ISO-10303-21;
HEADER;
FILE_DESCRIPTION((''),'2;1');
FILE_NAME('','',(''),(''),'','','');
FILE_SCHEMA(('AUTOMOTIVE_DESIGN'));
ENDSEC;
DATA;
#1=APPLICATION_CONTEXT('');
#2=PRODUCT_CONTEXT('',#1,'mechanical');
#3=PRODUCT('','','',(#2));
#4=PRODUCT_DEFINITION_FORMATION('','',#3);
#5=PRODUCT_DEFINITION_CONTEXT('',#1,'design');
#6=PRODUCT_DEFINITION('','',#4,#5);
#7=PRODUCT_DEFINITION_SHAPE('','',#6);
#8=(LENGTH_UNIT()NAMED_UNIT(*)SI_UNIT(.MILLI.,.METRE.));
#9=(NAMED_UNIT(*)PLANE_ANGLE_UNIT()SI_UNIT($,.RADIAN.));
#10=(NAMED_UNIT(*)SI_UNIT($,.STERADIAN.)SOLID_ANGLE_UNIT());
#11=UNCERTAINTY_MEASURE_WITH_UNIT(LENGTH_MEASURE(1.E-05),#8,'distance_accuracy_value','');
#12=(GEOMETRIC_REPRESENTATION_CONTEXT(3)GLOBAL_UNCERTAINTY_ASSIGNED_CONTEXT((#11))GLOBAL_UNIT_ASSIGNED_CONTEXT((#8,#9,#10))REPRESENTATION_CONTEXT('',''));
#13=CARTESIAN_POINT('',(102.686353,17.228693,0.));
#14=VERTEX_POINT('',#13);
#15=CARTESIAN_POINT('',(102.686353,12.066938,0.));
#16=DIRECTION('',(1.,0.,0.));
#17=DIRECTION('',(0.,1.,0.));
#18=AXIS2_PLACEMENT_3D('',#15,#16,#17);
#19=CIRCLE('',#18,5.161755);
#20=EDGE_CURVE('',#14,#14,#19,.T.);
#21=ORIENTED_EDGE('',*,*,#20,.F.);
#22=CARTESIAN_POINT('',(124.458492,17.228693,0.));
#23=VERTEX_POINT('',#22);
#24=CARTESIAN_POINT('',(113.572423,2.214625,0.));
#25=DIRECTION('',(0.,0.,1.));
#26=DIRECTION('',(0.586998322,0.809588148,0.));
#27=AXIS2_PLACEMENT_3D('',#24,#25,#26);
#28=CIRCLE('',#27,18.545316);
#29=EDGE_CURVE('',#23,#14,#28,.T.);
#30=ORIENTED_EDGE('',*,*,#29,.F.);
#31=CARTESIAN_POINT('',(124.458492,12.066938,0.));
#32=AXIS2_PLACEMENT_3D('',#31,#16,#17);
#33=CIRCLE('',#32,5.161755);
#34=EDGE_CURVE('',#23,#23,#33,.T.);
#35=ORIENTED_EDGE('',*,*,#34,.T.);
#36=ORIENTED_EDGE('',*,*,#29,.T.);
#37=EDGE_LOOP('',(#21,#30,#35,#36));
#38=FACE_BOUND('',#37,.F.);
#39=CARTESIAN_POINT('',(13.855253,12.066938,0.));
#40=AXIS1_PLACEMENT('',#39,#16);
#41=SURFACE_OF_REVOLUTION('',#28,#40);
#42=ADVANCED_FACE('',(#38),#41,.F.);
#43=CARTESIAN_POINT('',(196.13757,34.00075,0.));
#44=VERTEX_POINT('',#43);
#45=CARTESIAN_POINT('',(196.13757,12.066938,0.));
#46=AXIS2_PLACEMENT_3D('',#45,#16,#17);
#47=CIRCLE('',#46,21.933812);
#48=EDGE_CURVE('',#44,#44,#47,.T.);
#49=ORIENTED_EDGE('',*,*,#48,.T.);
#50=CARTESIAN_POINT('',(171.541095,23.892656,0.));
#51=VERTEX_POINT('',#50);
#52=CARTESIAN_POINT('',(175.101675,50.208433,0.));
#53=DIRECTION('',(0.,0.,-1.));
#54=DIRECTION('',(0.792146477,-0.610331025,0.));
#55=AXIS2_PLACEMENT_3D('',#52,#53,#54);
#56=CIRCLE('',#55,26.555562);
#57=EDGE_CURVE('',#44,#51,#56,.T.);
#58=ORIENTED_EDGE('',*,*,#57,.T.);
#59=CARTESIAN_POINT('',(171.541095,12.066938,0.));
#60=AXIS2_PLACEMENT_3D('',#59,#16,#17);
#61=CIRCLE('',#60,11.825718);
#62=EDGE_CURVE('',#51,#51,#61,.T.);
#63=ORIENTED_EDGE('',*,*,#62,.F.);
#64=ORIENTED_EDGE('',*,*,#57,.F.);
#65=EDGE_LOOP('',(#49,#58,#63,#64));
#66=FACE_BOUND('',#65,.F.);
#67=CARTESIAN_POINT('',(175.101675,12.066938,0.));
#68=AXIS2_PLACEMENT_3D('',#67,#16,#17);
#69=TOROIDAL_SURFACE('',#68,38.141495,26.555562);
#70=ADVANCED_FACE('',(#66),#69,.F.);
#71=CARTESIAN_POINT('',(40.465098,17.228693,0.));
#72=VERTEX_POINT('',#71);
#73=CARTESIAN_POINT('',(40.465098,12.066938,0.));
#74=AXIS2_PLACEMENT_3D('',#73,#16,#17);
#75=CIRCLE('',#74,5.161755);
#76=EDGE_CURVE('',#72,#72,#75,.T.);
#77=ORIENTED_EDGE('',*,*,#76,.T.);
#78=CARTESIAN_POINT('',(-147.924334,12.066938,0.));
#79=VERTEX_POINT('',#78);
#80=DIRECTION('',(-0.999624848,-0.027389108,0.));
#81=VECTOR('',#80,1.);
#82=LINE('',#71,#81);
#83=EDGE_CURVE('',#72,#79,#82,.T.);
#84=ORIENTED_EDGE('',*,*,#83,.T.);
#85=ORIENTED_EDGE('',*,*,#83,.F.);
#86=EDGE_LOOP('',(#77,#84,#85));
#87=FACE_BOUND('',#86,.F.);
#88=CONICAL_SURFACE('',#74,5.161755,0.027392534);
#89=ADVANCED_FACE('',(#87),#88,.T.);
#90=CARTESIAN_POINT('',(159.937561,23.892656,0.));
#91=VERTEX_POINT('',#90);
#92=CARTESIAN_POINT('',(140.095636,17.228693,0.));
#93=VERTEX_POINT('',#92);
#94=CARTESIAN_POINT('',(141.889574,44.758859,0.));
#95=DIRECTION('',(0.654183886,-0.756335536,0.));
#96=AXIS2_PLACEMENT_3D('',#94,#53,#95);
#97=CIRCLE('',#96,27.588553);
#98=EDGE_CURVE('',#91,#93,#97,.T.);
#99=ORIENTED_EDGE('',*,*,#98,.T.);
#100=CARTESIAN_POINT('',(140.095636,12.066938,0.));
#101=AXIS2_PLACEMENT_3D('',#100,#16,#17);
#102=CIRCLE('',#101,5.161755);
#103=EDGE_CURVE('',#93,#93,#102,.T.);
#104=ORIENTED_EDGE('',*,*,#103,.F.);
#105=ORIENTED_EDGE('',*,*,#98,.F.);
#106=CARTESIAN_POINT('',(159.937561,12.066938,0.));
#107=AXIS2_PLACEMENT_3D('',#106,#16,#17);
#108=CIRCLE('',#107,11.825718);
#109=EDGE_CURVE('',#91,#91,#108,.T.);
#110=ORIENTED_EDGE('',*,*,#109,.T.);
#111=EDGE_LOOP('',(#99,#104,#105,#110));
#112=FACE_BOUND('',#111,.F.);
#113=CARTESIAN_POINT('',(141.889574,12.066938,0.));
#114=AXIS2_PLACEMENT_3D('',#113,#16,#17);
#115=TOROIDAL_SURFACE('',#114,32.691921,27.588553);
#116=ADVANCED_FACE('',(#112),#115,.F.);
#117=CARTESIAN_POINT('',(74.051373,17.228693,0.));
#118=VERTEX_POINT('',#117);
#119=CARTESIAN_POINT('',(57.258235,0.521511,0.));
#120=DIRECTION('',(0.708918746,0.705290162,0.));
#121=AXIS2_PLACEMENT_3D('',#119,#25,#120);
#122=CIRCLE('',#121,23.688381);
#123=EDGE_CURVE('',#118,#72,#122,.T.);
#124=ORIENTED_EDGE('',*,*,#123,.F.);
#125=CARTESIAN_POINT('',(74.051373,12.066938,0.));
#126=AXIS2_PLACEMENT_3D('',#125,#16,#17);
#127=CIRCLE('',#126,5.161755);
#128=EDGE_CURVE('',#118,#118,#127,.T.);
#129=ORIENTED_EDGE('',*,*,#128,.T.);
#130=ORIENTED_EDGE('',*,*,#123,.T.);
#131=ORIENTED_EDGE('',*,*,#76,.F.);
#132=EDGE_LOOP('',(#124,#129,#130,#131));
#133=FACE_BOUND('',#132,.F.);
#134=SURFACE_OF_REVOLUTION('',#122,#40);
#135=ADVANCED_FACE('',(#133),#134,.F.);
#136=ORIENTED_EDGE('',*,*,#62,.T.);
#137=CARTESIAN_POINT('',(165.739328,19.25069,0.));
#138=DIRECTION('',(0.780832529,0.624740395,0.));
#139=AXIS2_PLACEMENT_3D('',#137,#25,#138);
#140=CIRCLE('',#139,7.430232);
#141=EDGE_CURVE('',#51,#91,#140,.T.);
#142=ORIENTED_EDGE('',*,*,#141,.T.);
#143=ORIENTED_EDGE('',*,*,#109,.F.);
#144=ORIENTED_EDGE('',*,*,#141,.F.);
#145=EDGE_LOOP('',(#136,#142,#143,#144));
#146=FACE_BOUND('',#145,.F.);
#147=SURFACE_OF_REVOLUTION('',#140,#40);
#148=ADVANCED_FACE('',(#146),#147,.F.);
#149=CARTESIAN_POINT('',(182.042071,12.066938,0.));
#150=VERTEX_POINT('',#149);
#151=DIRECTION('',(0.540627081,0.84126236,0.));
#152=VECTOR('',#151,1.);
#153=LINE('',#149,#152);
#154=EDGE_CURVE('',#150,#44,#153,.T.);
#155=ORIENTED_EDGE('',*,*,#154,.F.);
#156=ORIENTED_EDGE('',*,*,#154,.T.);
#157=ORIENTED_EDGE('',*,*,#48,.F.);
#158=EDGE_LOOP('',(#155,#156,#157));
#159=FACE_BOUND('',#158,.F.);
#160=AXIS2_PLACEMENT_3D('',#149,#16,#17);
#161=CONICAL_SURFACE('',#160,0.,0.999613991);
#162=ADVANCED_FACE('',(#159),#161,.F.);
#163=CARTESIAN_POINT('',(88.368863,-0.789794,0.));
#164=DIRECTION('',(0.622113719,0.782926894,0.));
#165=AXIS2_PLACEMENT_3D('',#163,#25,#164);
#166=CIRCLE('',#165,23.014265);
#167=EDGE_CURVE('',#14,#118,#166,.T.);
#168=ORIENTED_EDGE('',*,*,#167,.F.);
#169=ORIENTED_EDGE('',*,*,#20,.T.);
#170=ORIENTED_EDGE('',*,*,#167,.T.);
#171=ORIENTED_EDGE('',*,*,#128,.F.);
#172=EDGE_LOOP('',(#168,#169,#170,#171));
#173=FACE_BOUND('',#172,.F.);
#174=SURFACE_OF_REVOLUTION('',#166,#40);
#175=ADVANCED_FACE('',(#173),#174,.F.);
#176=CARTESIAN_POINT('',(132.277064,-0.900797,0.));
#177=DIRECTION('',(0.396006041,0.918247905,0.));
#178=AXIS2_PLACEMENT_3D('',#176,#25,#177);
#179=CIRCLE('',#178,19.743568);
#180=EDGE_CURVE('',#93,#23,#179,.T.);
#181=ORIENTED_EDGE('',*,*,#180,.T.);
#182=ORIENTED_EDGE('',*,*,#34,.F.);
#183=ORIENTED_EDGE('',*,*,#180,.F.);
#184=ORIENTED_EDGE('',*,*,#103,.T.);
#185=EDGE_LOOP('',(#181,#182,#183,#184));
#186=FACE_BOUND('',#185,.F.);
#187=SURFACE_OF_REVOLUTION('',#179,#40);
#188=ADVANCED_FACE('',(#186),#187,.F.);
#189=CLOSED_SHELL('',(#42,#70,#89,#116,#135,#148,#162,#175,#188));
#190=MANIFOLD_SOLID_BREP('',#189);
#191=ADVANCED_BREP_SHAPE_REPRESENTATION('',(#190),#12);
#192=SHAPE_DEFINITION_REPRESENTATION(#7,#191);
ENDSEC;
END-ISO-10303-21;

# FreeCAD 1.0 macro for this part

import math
import FreeCAD as App
import Part
import Sketcher

V = App.Vector
Q = App.Units.Quantity

doc = App.newDocument("Part")
body = doc.addObject("PartDesign::Body", "Body")

sketch1 = body.newObject("Sketcher::SketchObject", "Sketch")
sketch1.AttachmentSupport = (doc.getObject("XY_Plane"), [""])
sketch1.MapMode = "FlatFace"
sketch1.addGeometry(Part.LineSegment(V(40.465098, 17.228693, 0), V(-147.924334, 12.066938, 0)), False)
sketch1.addGeometry(Part.LineSegment(V(-147.924334, 12.066938, 0), V(182.042071, 12.066938, 0)), False)
sketch1.addGeometry(Part.LineSegment(V(182.042071, 12.066938, 0), V(196.13757, 34.00075, 0)), False)
sketch1.addGeometry(Part.ArcOfCircle(Part.Circle(V(175.101675, 50.208433, 0), V(0, 0, 1), 26.555562), math.radians(-97.705447), math.radians(-37.613442)), False)
sketch1.addGeometry(Part.ArcOfCircle(Part.Circle(V(165.739328, 19.25069, 0), V(0, 0, 1), 7.430232), math.radians(38.663136), math.radians(141.336864)), False)
sketch1.addGeometry(Part.ArcOfCircle(Part.Circle(V(141.889574, 44.758859, 0), V(0, 0, 1), 27.588553), math.radians(-93.728273), math.radians(-49.142203)), False)
sketch1.addGeometry(Part.ArcOfCircle(Part.Circle(V(132.277064, -0.900797, 0), V(0, 0, 1), 19.743568), math.radians(66.671267), math.radians(113.328733)), False)
sketch1.addGeometry(Part.ArcOfCircle(Part.Circle(V(113.572423, 2.214625, 0), V(0, 0, 1), 18.545316), math.radians(54.055712), math.radians(125.944288)), False)
sketch1.addGeometry(Part.ArcOfCircle(Part.Circle(V(88.368863, -0.789794, 0), V(0, 0, 1), 23.014265), math.radians(51.529346), math.radians(128.470654)), False)
sketch1.addGeometry(Part.ArcOfCircle(Part.Circle(V(57.258235, 0.521511, 0), V(0, 0, 1), 23.688381), math.radians(44.852991), math.radians(135.147009)), False)
sketch1.addGeometry(Part.LineSegment(V(-147.924334, 12.066938, 0), V(196.13757, 12.066938, 0)), True)
sketch1.addConstraint(Sketcher.Constraint("Coincident", 0, 2, 1, 1))
sketch1.addConstraint(Sketcher.Constraint("Coincident", 1, 2, 2, 1))
sketch1.addConstraint(Sketcher.Constraint("Coincident", 2, 2, 3, 2))
sketch1.addConstraint(Sketcher.Constraint("Coincident", 3, 1, 4, 1))
sketch1.addConstraint(Sketcher.Constraint("Coincident", 4, 2, 5, 2))
sketch1.addConstraint(Sketcher.Constraint("Coincident", 5, 1, 6, 1))
sketch1.addConstraint(Sketcher.Constraint("Coincident", 6, 2, 7, 1))
sketch1.addConstraint(Sketcher.Constraint("Coincident", 7, 2, 8, 1))
sketch1.addConstraint(Sketcher.Constraint("Coincident", 8, 2, 9, 1))
sketch1.addConstraint(Sketcher.Constraint("Coincident", 9, 2, 0, 1))
sketch1.addConstraint(Sketcher.Constraint("Horizontal", 1))
sketch1.addConstraint(Sketcher.Constraint("Horizontal", 10))
sketch1.addConstraint(Sketcher.Constraint("Coincident", 10, 1, 0, 2))
sketch1.addConstraint(Sketcher.Constraint("Horizontal", 3, 1, 4, 2))
sketch1.addConstraint(Sketcher.Constraint("Horizontal", 5, 1, 6, 2))
sketch1.addConstraint(Sketcher.Constraint("Horizontal", 6, 2, 7, 2))
sketch1.addConstraint(Sketcher.Constraint("Horizontal", 7, 2, 8, 2))
sketch1.addConstraint(Sketcher.Constraint("Horizontal", 8, 2, 9, 2))
sketch1.addConstraint(Sketcher.Constraint("Vertical", 2, 2, 10, 2))
sketch1.addConstraint(Sketcher.Constraint("Radius", 3, Q("26.555562 mm")))
sketch1.addConstraint(Sketcher.Constraint("Radius", 9, Q("23.688381 mm")))
sketch1.addConstraint(Sketcher.Constraint("Radius", 4, Q("7.430232 mm")))
sketch1.addConstraint(Sketcher.Constraint("Radius", 5, Q("27.588553 mm")))
sketch1.addConstraint(Sketcher.Constraint("Radius", 6, Q("19.743568 mm")))
sketch1.addConstraint(Sketcher.Constraint("Radius", 7, Q("18.545316 mm")))
sketch1.addConstraint(Sketcher.Constraint("Radius", 8, Q("23.014265 mm")))
sketch1.addConstraint(Sketcher.Constraint("Distance", 2, Q("26.072499 mm")))
sketch1.addConstraint(Sketcher.Constraint("DistanceX", -1, 1, 9, 2, Q("40.465098 mm")))
sketch1.addConstraint(Sketcher.Constraint("DistanceX", 5, 3, 3, 3, Q("33.212101 mm")))
sketch1.addConstraint(Sketcher.Constraint("DistanceX", 8, 3, 6, 3, Q("43.908201 mm")))
sketch1.addConstraint(Sketcher.Constraint("DistanceX", 0, 2, 6, 3, Q("280.201398 mm")))
sketch1.addConstraint(Sketcher.Constraint("DistanceX", 1, 2, 2, 2, Q("14.095499 mm")))
sketch1.addConstraint(Sketcher.Constraint("DistanceX", 1, 1, 1, 2, Q("329.966405 mm")))
sketch1.addConstraint(Sketcher.Constraint("DistanceX", -1, 1, 4, 3, Q("165.739328 mm")))
sketch1.addConstraint(Sketcher.Constraint("DistanceY", -1, 1, 4, 3, Q("19.25069 mm")))
sketch1.addConstraint(Sketcher.Constraint("DistanceY", -1, 1, 5, 3, Q("44.758859 mm")))
sketch1.addConstraint(Sketcher.Constraint("DistanceY", -1, 1, 9, 3, Q("0.521511 mm")))
sketch1.addConstraint(Sketcher.Constraint("DistanceX", -1, 1, 1, 2, Q("182.042071 mm")))
sketch1.addConstraint(Sketcher.Constraint("DistanceY", -1, 1, 2, 2, Q("34.00075 mm")))
sketch1.addConstraint(Sketcher.Constraint("DistanceY", 6, 3, 3, 3, Q("51.10923 mm")))
revolution = body.newObject("PartDesign::Revolution", "Revolution")
revolution.Profile = sketch1
revolution.ReferenceAxis = (sketch1, ["Axis0"])
revolution.Angle = 360

doc.recompute()
